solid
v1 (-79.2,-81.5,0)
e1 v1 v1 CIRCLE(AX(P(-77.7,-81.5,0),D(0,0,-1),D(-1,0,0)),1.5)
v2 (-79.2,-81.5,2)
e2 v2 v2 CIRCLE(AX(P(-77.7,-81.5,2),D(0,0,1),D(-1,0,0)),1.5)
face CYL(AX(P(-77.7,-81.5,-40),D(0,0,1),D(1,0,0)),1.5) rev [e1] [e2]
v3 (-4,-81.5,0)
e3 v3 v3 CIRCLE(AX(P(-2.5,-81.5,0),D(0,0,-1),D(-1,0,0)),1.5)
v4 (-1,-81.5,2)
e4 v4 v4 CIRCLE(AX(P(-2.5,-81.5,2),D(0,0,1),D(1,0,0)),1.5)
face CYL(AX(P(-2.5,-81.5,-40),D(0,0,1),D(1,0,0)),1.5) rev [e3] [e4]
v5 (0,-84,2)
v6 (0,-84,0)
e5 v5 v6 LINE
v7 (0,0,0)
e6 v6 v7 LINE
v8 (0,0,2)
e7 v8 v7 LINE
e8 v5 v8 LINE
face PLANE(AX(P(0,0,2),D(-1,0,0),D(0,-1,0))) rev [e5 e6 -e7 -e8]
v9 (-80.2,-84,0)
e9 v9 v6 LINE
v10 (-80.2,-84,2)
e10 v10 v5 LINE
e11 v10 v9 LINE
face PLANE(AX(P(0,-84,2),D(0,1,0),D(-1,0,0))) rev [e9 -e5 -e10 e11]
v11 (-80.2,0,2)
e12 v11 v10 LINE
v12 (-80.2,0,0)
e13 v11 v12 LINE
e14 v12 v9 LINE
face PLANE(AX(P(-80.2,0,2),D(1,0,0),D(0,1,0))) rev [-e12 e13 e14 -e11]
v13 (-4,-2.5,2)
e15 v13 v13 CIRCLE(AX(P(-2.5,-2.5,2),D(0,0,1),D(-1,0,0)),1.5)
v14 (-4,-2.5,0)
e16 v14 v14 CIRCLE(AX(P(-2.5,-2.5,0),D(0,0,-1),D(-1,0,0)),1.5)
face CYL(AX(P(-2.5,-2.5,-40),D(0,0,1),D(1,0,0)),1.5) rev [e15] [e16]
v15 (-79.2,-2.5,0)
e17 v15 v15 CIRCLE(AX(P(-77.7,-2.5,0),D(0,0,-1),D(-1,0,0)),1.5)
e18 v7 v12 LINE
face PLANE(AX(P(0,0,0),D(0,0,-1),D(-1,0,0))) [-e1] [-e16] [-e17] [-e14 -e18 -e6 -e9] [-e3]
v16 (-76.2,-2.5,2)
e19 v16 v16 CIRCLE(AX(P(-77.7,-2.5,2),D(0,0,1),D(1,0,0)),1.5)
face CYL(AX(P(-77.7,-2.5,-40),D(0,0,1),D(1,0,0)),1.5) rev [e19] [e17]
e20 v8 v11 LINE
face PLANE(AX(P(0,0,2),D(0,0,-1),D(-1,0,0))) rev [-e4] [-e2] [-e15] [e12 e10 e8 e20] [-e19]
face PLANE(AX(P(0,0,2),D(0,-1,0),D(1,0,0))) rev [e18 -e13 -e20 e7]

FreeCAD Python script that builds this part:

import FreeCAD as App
import Part
import Sketcher

V = App.Vector

doc = App.newDocument("Part")
body = doc.addObject("PartDesign::Body", "Body")

# Sketch on XY plane
sketch1 = body.newObject("Sketcher::SketchObject", "Sketch")
sketch1.AttachmentSupport = (doc.getObject("XY_Plane"), [""])
sketch1.MapMode = "FlatFace"
sketch1.addGeometry([
    Part.LineSegment(V(-80, 0, 0), V(-80, -84, 0)),
    Part.LineSegment(V(-80, -84, 0), V(0, -84, 0)),
    Part.LineSegment(V(0, -84, 0), V(0, 0, 0)),
    Part.LineSegment(V(0, 0, 0), V(-80, 0, 0)),
], False)
sketch1.addConstraint([
    Sketcher.Constraint("Coincident", 0, 2, 1, 1),
    Sketcher.Constraint("Coincident", 1, 2, 2, 1),
    Sketcher.Constraint("Coincident", 2, 2, 3, 1),
    Sketcher.Constraint("Coincident", 3, 2, 0, 1),
    Sketcher.Constraint("Vertical", 0),
    Sketcher.Constraint("Horizontal", 1),
    Sketcher.Constraint("Vertical", 2),
    Sketcher.Constraint("Horizontal", 3),
    Sketcher.Constraint("Coincident", 2, 2, -1, 1),
    Sketcher.Constraint("DistanceY", 0, 2, 0, 1, 84.0),
    Sketcher.Constraint("DistanceX", 1, 1, 1, 2, 80.2),
])
pad1 = body.newObject("PartDesign::Pad", "Pad")
pad1.Profile = sketch1
pad1.Length = 2

# Sketch on XY plane
sketch2 = body.newObject("Sketcher::SketchObject", "Sketch001")
sketch2.AttachmentSupport = (doc.getObject("XY_Plane"), [""])
sketch2.MapMode = "FlatFace"
sketch2.AttachmentOffset = App.Placement(V(0, 0, 2), App.Rotation())
sketch2.addGeometry([
    Part.Circle(V(-77.7, -2.5, 0), V(0, 0, 1), 1.5),
    Part.Circle(V(-2.5, -2.5, 0), V(0, 0, 1), 1.5),
    Part.Circle(V(-77.7, -81.5, 0), V(0, 0, 1), 1.5),
    Part.Circle(V(-2.5, -81.5, 0), V(0, 0, 1), 1.5),
], False)
sketch2.addConstraint([
    Sketcher.Constraint("Equal", 0, 1),
    Sketcher.Constraint("Equal", 1, 2),
    Sketcher.Constraint("Equal", 2, 3),
    Sketcher.Constraint("Horizontal", 0, 3, 1, 3),
    Sketcher.Constraint("Horizontal", 2, 3, 3, 3),
    Sketcher.Constraint("Vertical", 0, 3, 2, 3),
    Sketcher.Constraint("Vertical", 1, 3, 3, 3),
    Sketcher.Constraint("Diameter", 0, 3.0),
    Sketcher.Constraint("DistanceY", 2, 3, 0, 3, 79.0),
    Sketcher.Constraint("DistanceX", 0, 3, -1, 1, 77.7),
    Sketcher.Constraint("DistanceY", 0, 3, -1, 1, 2.5),
    Sketcher.Constraint("DistanceX", 1, 3, -1, 1, 2.5),
])
pocket1 = body.newObject("PartDesign::Pocket", "Pocket")
pocket1.Profile = sketch2
pocket1.Length = 42

doc.recompute()
